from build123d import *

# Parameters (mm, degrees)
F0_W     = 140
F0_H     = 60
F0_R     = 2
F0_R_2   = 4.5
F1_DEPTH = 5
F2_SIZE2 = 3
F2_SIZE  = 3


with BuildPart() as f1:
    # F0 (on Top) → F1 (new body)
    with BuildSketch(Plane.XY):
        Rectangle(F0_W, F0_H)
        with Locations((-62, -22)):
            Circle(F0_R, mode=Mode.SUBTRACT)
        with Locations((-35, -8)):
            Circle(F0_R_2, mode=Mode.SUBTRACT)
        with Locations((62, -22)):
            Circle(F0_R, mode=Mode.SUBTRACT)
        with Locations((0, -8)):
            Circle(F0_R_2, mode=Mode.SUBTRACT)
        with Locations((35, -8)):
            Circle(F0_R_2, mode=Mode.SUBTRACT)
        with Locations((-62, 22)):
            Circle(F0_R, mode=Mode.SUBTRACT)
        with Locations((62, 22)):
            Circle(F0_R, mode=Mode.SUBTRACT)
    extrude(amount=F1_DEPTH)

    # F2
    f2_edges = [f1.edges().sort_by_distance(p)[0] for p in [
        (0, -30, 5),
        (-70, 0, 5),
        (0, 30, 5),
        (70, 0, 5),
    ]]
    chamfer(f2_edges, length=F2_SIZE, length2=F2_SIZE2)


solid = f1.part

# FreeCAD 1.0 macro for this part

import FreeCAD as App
import Part
import Sketcher
Q = App.Units.Quantity


def edges_at(feature, points):
    """Names of the edges that pass closest to the given points."""
    edges = feature.Shape.Edges
    near = lambda p: min(range(len(edges)), key=lambda i: edges[i].distToShape(Part.Vertex(*p))[0])
    return sorted({f"Edge{near(p) + 1}" for p in points})

doc = App.newDocument("Part")
body = doc.addObject("PartDesign::Body", "Body")

# Sketch on XY plane
sketch1 = body.newObject("Sketcher::SketchObject", "Sketch")
sketch1.AttachmentSupport = (doc.getObject("XY_Plane"), [""])
sketch1.MapMode = "FlatFace"
sketch1.addGeometry([
    Part.LineSegment(App.Vector(-70, 30, 0), App.Vector(-70, -30, 0)),  # 0
    Part.LineSegment(App.Vector(-70, -30, 0), App.Vector(70, -30, 0)),  # 1
    Part.LineSegment(App.Vector(70, -30, 0), App.Vector(70, 30, 0)),  # 2
    Part.LineSegment(App.Vector(70, 30, 0), App.Vector(-70, 30, 0)),  # 3
    Part.Circle(App.Vector(-62, -22, 0), App.Vector(0, 0, 1), 2),  # 4
    Part.Circle(App.Vector(-35, -8, 0), App.Vector(0, 0, 1), 4.5),  # 5
    Part.Circle(App.Vector(62, -22, 0), App.Vector(0, 0, 1), 2),  # 6
    Part.Circle(App.Vector(0, -8, 0), App.Vector(0, 0, 1), 4.5),  # 7
    Part.Circle(App.Vector(35, -8, 0), App.Vector(0, 0, 1), 4.5),  # 8
    Part.Circle(App.Vector(-62, 22, 0), App.Vector(0, 0, 1), 2),  # 9
    Part.Circle(App.Vector(62, 22, 0), App.Vector(0, 0, 1), 2),  # 10
], False)
sketch1.addConstraint([
    Sketcher.Constraint("Coincident", 0, 2, 1, 1),
    Sketcher.Constraint("Coincident", 1, 2, 2, 1),
    Sketcher.Constraint("Coincident", 2, 2, 3, 1),
    Sketcher.Constraint("Coincident", 3, 2, 0, 1),
    Sketcher.Constraint("Vertical", 0),
    Sketcher.Constraint("Horizontal", 1),
    Sketcher.Constraint("Vertical", 2),
    Sketcher.Constraint("Horizontal", 3),
    Sketcher.Constraint("Equal", 4, 6),
    Sketcher.Constraint("Equal", 5, 7),
    Sketcher.Constraint("Equal", 7, 8),
    Sketcher.Constraint("Equal", 6, 9),
    Sketcher.Constraint("Equal", 9, 10),
    Sketcher.Constraint("Symmetric", 6, 3, 9, 3, -1, 1),
    Sketcher.Constraint("Symmetric", 4, 3, 10, 3, -1, 1),
    Sketcher.Constraint("Symmetric", 0, 2, 2, 2, -1, 1),
    Sketcher.Constraint("Symmetric", 4, 3, 6, 3, -2),
    Sketcher.Constraint("Symmetric", 5, 3, 8, 3, -2),
    Sketcher.Constraint("PointOnObject", 7, 3, -2),
    Sketcher.Constraint("Horizontal", 5, 3, 7, 3),
    Sketcher.Constraint("Diameter", 4, Q("4 mm")),
    Sketcher.Constraint("Diameter", 5, Q("9 mm")),
    Sketcher.Constraint("DistanceX", 1, 1, 1, 2, Q("140 mm")),
    Sketcher.Constraint("DistanceY", 0, 2, 0, 1, Q("60 mm")),
    Sketcher.Constraint("DistanceX", 4, 3, -1, 1, Q("62 mm")),
    Sketcher.Constraint("DistanceY", 4, 3, -1, 1, Q("22 mm")),
    Sketcher.Constraint("DistanceX", 5, 3, -1, 1, Q("35 mm")),
    Sketcher.Constraint("DistanceY", 5, 3, -1, 1, Q("8 mm")),
])
pad1 = body.newObject("PartDesign::Pad", "Pad")
pad1.Profile = sketch1
pad1.Length = 5
doc.recompute()

chamfer = body.newObject("PartDesign::Chamfer", "Chamfer")
chamfer.Base = (pad1, edges_at(pad1, [
    (0, -30, 5),
    (-70, 0, 5),
    (0, 30, 5),
    (70, 0, 5),
]))
chamfer.ChamferType = "Two distances"
chamfer.Size = 3
chamfer.Size2 = 3

doc.recompute()
